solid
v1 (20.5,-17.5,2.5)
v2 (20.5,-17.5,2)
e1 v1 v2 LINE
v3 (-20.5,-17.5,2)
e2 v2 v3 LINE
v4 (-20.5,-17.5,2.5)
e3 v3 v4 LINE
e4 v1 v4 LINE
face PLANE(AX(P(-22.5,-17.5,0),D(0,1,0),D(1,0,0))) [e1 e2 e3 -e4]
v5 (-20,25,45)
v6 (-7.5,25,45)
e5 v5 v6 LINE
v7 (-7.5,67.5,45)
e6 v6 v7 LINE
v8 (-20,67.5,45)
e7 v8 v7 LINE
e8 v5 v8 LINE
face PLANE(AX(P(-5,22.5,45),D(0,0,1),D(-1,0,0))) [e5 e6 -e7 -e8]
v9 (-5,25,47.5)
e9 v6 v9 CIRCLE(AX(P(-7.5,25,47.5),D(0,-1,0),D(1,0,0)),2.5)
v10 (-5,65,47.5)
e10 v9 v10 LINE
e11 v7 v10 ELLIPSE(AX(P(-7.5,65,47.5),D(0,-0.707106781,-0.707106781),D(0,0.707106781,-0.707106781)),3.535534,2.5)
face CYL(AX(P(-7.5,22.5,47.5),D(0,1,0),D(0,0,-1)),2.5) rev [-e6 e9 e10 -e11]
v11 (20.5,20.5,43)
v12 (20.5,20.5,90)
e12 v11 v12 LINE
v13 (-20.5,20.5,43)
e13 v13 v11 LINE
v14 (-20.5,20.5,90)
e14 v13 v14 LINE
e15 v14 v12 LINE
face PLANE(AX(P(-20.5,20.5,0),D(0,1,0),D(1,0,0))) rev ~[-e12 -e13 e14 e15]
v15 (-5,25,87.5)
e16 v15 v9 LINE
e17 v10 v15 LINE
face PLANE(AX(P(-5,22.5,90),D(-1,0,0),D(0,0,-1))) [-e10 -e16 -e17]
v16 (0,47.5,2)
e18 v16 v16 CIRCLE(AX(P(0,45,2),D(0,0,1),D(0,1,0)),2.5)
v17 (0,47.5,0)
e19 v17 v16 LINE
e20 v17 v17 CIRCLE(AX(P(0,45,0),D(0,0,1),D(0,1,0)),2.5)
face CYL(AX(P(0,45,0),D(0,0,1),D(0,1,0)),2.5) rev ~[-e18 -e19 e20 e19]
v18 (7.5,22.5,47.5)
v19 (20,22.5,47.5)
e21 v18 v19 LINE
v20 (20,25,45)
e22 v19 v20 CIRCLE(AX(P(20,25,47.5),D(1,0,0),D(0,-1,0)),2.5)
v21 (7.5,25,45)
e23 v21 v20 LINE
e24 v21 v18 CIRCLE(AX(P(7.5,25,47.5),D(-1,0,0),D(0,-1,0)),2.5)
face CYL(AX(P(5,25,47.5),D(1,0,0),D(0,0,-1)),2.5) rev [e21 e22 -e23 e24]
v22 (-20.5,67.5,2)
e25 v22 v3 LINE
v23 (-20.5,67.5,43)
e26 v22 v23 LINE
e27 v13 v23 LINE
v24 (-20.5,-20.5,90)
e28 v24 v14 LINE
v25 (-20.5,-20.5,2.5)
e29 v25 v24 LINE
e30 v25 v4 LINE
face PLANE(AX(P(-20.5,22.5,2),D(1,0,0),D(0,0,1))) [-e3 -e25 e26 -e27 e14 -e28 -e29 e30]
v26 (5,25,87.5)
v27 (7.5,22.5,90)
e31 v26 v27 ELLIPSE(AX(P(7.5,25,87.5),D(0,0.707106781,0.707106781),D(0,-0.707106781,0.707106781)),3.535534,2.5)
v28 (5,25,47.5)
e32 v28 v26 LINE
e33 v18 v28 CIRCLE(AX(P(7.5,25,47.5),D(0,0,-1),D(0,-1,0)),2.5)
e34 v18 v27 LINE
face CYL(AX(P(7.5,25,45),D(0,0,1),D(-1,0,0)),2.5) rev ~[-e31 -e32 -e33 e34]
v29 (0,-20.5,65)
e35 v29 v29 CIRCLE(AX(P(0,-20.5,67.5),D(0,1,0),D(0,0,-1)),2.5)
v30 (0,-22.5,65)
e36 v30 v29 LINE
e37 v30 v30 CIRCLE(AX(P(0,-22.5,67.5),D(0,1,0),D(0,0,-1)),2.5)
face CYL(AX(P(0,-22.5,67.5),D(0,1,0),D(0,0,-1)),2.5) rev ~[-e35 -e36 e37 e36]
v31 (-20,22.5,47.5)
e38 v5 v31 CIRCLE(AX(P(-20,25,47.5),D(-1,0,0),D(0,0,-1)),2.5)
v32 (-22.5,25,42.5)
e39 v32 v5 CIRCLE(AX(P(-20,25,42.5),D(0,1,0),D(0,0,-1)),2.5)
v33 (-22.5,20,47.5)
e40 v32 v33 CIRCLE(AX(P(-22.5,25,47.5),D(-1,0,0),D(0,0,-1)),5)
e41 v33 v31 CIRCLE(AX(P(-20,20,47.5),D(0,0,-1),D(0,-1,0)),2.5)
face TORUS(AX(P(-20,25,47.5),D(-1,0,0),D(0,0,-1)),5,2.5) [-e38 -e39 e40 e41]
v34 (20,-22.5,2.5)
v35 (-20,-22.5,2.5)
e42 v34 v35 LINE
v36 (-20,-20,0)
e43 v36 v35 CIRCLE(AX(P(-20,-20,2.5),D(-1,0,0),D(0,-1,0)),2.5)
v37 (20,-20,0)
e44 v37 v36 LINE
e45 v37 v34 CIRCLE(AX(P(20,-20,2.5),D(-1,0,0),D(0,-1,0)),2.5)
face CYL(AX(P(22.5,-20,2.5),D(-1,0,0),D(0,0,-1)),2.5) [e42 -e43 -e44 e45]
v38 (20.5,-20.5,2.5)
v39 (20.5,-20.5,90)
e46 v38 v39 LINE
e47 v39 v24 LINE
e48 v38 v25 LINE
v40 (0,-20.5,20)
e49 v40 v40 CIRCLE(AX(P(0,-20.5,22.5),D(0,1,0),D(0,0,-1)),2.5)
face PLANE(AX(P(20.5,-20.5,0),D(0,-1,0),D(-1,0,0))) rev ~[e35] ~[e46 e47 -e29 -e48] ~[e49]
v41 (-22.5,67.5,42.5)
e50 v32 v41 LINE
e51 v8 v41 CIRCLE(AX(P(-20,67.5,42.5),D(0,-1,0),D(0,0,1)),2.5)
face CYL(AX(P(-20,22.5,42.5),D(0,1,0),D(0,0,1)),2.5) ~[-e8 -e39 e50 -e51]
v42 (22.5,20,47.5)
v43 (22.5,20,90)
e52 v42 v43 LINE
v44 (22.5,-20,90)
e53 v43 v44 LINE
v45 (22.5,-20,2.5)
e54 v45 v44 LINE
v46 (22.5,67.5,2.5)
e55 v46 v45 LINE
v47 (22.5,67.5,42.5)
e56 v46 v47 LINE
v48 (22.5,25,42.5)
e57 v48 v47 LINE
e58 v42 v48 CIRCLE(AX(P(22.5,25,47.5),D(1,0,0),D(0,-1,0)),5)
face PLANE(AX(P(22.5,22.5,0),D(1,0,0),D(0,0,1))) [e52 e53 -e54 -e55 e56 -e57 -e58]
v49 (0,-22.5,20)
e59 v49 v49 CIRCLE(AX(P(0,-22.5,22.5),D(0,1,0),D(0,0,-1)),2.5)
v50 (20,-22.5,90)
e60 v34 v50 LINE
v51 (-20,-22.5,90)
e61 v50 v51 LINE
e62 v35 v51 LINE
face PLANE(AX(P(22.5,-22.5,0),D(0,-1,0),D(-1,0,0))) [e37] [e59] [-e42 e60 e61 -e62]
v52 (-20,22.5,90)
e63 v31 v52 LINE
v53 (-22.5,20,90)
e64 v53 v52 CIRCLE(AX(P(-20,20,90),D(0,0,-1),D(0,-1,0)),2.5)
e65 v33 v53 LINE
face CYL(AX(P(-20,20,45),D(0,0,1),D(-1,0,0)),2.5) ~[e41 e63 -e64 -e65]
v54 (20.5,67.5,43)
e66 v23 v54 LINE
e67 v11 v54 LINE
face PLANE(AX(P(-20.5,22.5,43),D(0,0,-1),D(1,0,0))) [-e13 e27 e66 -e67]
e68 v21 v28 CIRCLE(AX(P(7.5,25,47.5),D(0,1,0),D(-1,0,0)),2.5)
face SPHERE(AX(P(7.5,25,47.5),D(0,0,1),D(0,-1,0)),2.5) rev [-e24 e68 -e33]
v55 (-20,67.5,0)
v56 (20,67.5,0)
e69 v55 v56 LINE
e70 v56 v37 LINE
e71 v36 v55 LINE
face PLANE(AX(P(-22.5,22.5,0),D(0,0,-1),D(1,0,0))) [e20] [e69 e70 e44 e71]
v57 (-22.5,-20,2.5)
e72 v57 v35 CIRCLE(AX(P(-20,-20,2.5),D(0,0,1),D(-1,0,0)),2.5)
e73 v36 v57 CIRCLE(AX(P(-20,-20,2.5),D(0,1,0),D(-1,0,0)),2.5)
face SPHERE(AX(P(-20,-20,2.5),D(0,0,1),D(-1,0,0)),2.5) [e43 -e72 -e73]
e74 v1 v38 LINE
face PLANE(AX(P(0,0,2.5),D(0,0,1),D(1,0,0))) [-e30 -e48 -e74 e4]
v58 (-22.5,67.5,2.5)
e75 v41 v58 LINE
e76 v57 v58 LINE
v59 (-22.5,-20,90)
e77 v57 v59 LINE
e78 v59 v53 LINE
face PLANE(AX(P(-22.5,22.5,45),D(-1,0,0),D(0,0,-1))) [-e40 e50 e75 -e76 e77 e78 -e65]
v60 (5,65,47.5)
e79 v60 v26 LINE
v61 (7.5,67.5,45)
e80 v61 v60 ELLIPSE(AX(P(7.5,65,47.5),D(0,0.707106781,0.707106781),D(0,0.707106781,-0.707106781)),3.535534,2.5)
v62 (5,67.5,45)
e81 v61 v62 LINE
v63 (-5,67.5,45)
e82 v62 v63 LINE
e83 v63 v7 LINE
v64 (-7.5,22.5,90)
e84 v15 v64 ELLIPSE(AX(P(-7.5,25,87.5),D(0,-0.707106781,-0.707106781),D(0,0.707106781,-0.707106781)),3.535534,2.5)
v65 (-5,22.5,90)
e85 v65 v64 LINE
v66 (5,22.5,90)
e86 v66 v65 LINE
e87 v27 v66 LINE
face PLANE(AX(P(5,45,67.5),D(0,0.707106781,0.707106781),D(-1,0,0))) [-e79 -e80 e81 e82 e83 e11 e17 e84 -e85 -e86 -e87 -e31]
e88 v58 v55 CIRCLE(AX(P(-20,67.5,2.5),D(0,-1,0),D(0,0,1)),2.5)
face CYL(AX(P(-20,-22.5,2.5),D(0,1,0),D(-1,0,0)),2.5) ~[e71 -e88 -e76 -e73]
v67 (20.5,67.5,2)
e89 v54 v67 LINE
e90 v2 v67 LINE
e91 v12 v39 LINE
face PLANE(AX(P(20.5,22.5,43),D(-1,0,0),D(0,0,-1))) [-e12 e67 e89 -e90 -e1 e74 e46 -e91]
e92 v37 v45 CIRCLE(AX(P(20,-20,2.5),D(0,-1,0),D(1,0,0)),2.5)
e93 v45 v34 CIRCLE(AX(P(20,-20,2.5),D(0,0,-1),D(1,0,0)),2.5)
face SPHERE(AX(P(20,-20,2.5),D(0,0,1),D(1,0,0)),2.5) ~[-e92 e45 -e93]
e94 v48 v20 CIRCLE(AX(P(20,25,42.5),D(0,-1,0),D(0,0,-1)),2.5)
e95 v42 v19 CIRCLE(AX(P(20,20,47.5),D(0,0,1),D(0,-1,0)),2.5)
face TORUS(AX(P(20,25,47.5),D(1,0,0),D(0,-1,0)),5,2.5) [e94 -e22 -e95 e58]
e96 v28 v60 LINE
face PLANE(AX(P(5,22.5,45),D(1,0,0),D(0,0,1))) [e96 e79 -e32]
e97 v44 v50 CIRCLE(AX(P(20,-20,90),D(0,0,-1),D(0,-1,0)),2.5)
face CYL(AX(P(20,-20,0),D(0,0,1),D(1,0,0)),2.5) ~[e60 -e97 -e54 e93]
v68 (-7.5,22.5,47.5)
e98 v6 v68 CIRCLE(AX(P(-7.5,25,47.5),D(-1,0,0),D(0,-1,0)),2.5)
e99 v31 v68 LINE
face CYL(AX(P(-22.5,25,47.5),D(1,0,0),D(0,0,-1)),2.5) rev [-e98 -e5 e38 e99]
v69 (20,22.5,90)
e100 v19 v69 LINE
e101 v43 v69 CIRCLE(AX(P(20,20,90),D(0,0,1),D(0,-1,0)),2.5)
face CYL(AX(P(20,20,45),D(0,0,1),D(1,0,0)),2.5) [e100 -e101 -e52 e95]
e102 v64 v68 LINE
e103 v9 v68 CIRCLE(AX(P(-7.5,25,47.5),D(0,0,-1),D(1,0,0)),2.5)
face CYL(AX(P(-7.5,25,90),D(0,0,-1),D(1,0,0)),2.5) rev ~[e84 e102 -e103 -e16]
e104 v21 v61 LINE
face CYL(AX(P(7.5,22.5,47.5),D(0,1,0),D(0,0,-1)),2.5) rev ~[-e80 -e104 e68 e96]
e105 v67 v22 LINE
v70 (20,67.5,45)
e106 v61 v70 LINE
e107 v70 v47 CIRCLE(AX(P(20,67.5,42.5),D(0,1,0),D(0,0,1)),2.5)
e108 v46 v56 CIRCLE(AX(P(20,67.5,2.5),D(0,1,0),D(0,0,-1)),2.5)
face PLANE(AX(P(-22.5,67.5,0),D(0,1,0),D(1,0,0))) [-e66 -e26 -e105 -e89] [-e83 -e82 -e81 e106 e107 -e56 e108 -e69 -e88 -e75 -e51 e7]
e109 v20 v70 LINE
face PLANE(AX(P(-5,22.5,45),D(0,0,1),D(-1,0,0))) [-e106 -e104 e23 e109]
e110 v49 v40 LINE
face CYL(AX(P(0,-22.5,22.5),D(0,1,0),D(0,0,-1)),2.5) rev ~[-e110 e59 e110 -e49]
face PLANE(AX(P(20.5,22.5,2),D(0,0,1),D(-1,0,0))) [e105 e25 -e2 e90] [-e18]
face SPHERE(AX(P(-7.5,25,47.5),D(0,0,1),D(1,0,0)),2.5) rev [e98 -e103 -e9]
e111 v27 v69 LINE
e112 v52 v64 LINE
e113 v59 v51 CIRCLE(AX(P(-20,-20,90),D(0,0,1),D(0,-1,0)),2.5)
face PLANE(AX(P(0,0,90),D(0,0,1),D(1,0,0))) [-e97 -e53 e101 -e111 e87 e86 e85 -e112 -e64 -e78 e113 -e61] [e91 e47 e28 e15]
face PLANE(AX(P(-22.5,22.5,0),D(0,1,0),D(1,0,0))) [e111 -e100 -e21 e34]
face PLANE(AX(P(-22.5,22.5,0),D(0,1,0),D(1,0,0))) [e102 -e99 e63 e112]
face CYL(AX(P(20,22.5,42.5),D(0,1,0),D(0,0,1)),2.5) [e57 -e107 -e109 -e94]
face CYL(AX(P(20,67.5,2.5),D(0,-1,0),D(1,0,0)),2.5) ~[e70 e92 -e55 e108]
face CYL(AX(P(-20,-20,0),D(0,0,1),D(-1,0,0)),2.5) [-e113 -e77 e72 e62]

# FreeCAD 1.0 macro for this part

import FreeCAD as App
import Part
import Sketcher

V = App.Vector
Q = App.Units.Quantity


def edges_at(feature, points):
    """Names of the edges that pass closest to the given points."""
    edges = feature.Shape.Edges
    near = lambda p: min(range(len(edges)), key=lambda i: edges[i].distToShape(Part.Vertex(*p))[0])
    return sorted({f"Edge{near(p) + 1}" for p in points})


def add_polygon(sketch, points):
    """Adds a closed chain of lines whose ends are joined by coincident constraints."""
    first, n = sketch.GeometryCount, len(points)
    for a, b in zip(points, points[1:] + points[:1]):
        sketch.addGeometry(Part.LineSegment(App.Vector(*a, 0), App.Vector(*b, 0)), False)
    for i in range(n):
        sketch.addConstraint(Sketcher.Constraint("Coincident", first + i, 2, first + (i + 1) % n, 1))

doc = App.newDocument("Part")
params = doc.addObject("Spreadsheet::Sheet", "Params")
for row, (alias, value) in enumerate([
    ("sketch1_width", "45 mm"),
    ("sketch1_width2", "41 mm"),
    ("pad1_length", "90 mm"),
    ("sketch2_width", "41 mm"),
    ("pad2_length", "2.5 mm"),
    ("sketch3_width", "45 mm"),
    ("sketch3_width2", "41 mm"),
    ("pad3_length", "45 mm"),
    ("sketch4_width", "41 mm"),
    ("pocket1_length", "40 mm"),
    ("sketch5_width", "10 mm"),
    ("sketch5_height", "45 mm"),
    ("pad4_length", "45 mm"),
    ("chamfer_size", "45 mm"),
    ("sketch6_diameter", "5 mm"),
    ("hole_diameter", "5 mm"),
    ("hole_depth", "8 mm"),
    ("sketch7_diameter", "5 mm"),
    ("hole2_diameter", "5 mm"),
    ("hole2_depth", "8 mm"),
    ("fillet_radius", "2.5 mm"),
], start=1):
    params.set(f"A{row}", alias)
    params.set(f"B{row}", "=" + value)
    params.setAlias(f"B{row}", alias)

body = doc.addObject("PartDesign::Body", "Body")

# Sketch on XY plane
sketch1 = body.newObject("Sketcher::SketchObject", "Sketch")
sketch1.AttachmentSupport = (doc.getObject("XY_Plane"), [""])
sketch1.MapMode = "FlatFace"
add_polygon(sketch1, [(-22, -22), (22, -22), (22, 22), (-22, 22)])  # lines 0-3
add_polygon(sketch1, [(20, 20), (20, -20), (-20, -20), (-20, 20)])  # lines 4-7
sketch1.addConstraint([
    Sketcher.Constraint("Horizontal", 0),
    Sketcher.Constraint("Vertical", 1),
    Sketcher.Constraint("Horizontal", 2),
    Sketcher.Constraint("Vertical", 3),
    Sketcher.Constraint("Vertical", 4),
    Sketcher.Constraint("Horizontal", 5),
    Sketcher.Constraint("Vertical", 6),
    Sketcher.Constraint("Horizontal", 7),
    Sketcher.Constraint("Symmetric", 0, 2, 2, 2, -1, 1),
    Sketcher.Constraint("Symmetric", 4, 2, 6, 2, -1, 1),
    Sketcher.Constraint("Equal", 2, 1),
    Sketcher.Constraint("Equal", 7, 4),
    Sketcher.Constraint("DistanceX", 0, 1, 0, 2, Q("45 mm")),
    Sketcher.Constraint("DistanceX", 5, 2, 5, 1, Q("41 mm")),
])
sketch1.setExpression("Constraints[20]", "Params.sketch1_width")
sketch1.setExpression("Constraints[21]", "Params.sketch1_width2")
pad1 = body.newObject("PartDesign::Pad", "Pad")
pad1.Profile = sketch1
pad1.setExpression("Length", "Params.pad1_length")

# Sketch on XY plane
sketch2 = body.newObject("Sketcher::SketchObject", "Sketch001")
sketch2.AttachmentSupport = (doc.getObject("XY_Plane"), [""])
sketch2.MapMode = "FlatFace"
add_polygon(sketch2, [(-20, -20), (20, -20), (20, 20), (-20, 20)])  # lines 0-3
sketch2.addConstraint([
    Sketcher.Constraint("Horizontal", 0),
    Sketcher.Constraint("Vertical", 1),
    Sketcher.Constraint("Horizontal", 2),
    Sketcher.Constraint("Vertical", 3),
    Sketcher.Constraint("Symmetric", 0, 2, 2, 2, -1, 1),
    Sketcher.Constraint("Equal", 2, 1),
    Sketcher.Constraint("DistanceX", 0, 1, 0, 2, Q("41 mm")),
])
sketch2.setExpression("Constraints[10]", "Params.sketch2_width")
pad2 = body.newObject("PartDesign::Pad", "Pad001")
pad2.Profile = sketch2
pad2.setExpression("Length", "Params.pad2_length")

# Sketch on XZ plane
sketch3 = body.newObject("Sketcher::SketchObject", "Sketch002")
sketch3.AttachmentSupport = (doc.getObject("XZ_Plane"), [""])
sketch3.MapMode = "FlatFace"
sketch3.AttachmentOffset = App.Placement(V(0, 0, -22.5), App.Rotation())
add_polygon(sketch3, [(22, 0), (-22, 0), (-22, 45), (22, 45)])  # lines 0-3
add_polygon(sketch3, [(-20, 2), (20, 2), (20, 43), (-20, 43)])  # lines 4-7
sketch3.addConstraint([
    Sketcher.Constraint("Horizontal", 0),
    Sketcher.Constraint("Vertical", 1),
    Sketcher.Constraint("Horizontal", 2),
    Sketcher.Constraint("Vertical", 3),
    Sketcher.Constraint("Horizontal", 4),
    Sketcher.Constraint("Vertical", 5),
    Sketcher.Constraint("Horizontal", 6),
    Sketcher.Constraint("Vertical", 7),
    Sketcher.Constraint("Symmetric", 0, 2, 3, 2, -1, 1),
    Sketcher.Constraint("Equal", 2, 1),
    Sketcher.Constraint("Equal", 6, 5),
    Sketcher.Constraint("DistanceX", 0, 2, 0, 1, Q("45 mm")),
    Sketcher.Constraint("DistanceX", 4, 1, 4, 2, Q("41 mm")),
    Sketcher.Constraint("DistanceY", -1, 1, 4, 2, Q("2 mm")),
    Sketcher.Constraint("DistanceX", 4, 2, 3, 2, Q("2 mm")),
])
sketch3.setExpression("Constraints[19]", "Params.sketch3_width")
sketch3.setExpression("Constraints[20]", "Params.sketch3_width2")
pad3 = body.newObject("PartDesign::Pad", "Pad002")
pad3.Profile = sketch3
pad3.setExpression("Length", "Params.pad3_length")
pad3.Reversed = True

# Sketch on XZ plane
sketch4 = body.newObject("Sketcher::SketchObject", "Sketch003")
sketch4.AttachmentSupport = (doc.getObject("XZ_Plane"), [""])
sketch4.MapMode = "FlatFace"
sketch4.AttachmentOffset = App.Placement(V(0, 0, -22.5), App.Rotation())
add_polygon(sketch4, [(20, 43), (20, 2), (-20, 2), (-20, 43)])  # lines 0-3
sketch4.addConstraint([
    Sketcher.Constraint("Vertical", 0),
    Sketcher.Constraint("Horizontal", 1),
    Sketcher.Constraint("Vertical", 2),
    Sketcher.Constraint("Horizontal", 3),
    Sketcher.Constraint("Equal", 3, 0),
    Sketcher.Constraint("DistanceX", 1, 2, 1, 1, Q("41 mm")),
    Sketcher.Constraint("DistanceY", -1, 1, 0, 2, Q("2 mm")),
    Sketcher.Constraint("DistanceX", -1, 1, 0, 2, Q("20.5 mm")),
])
sketch4.setExpression("Constraints[9]", "Params.sketch4_width")
pocket1 = body.newObject("PartDesign::Pocket", "Pocket")
pocket1.Profile = sketch4
pocket1.setExpression("Length", "Params.pocket1_length")
pocket1.Reversed = True

# Sketch on XZ plane
sketch5 = body.newObject("Sketcher::SketchObject", "Sketch004")
sketch5.AttachmentSupport = (doc.getObject("XZ_Plane"), [""])
sketch5.MapMode = "FlatFace"
sketch5.AttachmentOffset = App.Placement(V(0, 0, -22.5), App.Rotation())
add_polygon(sketch5, [(5, 45), (-5, 45), (-5, 90), (5, 90)])  # lines 0-3
sketch5.addConstraint([
    Sketcher.Constraint("Horizontal", 0),
    Sketcher.Constraint("Vertical", 1),
    Sketcher.Constraint("Horizontal", 2),
    Sketcher.Constraint("Vertical", 3),
    Sketcher.Constraint("DistanceX", 0, 2, 0, 1, Q("10 mm")),
    Sketcher.Constraint("DistanceY", 1, 1, 1, 2, Q("45 mm")),
    Sketcher.Constraint("DistanceX", 0, 2, -1, 1, Q("5 mm")),
    Sketcher.Constraint("DistanceY", -1, 1, 0, 2, Q("45 mm")),
])
sketch5.setExpression("Constraints[8]", "Params.sketch5_width")
sketch5.setExpression("Constraints[9]", "Params.sketch5_height")
pad4 = body.newObject("PartDesign::Pad", "Pad003")
pad4.Profile = sketch5
pad4.setExpression("Length", "Params.pad4_length")
pad4.Reversed = True
doc.recompute()

chamfer = body.newObject("PartDesign::Chamfer", "Chamfer")
chamfer.Base = (pad4, edges_at(pad4, [(0, 67.5, 90)]))
chamfer.setExpression("Size", "Params.chamfer_size")

# Sketch on XZ plane
sketch6 = body.newObject("Sketcher::SketchObject", "Sketch005")
sketch6.AttachmentSupport = (doc.getObject("XZ_Plane"), [""])
sketch6.MapMode = "FlatFace"
sketch6.AttachmentOffset = App.Placement(V(0, 0, 22.5), App.Rotation())
sketch6.addGeometry([
    Part.Circle(V(0, 67.5, 0), V(0, 0, 1), 2.5),
    Part.Circle(V(0, 22.5, 0), V(0, 0, 1), 2.5),
], False)
sketch6.addConstraint([
    Sketcher.Constraint("Equal", 0, 1),
    Sketcher.Constraint("PointOnObject", 0, 3, -2),
    Sketcher.Constraint("PointOnObject", 1, 3, -2),
    Sketcher.Constraint("Diameter", 0, Q("5 mm")),
    Sketcher.Constraint("DistanceY", 1, 3, 0, 3, Q("45 mm")),
    Sketcher.Constraint("DistanceY", -1, 1, 0, 3, Q("67.5 mm")),
])
sketch6.setExpression("Constraints[3]", "Params.sketch6_diameter")
doc.recompute()
hole = body.newObject("PartDesign::Hole", "Hole")
hole.Profile = sketch6
hole.ThreadType = "None"
hole.setExpression("Diameter", "Params.hole_diameter")
hole.DepthType = "Dimension"
hole.setExpression("Depth", "Params.hole_depth")
hole.DrillPoint = "Angled"
hole.DrillPointAngle = 118

# Sketch on XY plane
sketch7 = body.newObject("Sketcher::SketchObject", "Sketch006")
sketch7.AttachmentSupport = (doc.getObject("XY_Plane"), [""])
sketch7.MapMode = "FlatFace"
sketch7.addGeometry(Part.Circle(V(0, 45, 0), V(0, 0, 1), 2.5), False)
sketch7.addConstraint([
    Sketcher.Constraint("PointOnObject", 0, 3, -2),
    Sketcher.Constraint("Diameter", 0, Q("5 mm")),
    Sketcher.Constraint("DistanceY", -1, 1, 0, 3, Q("45 mm")),
])
sketch7.setExpression("Constraints[1]", "Params.sketch7_diameter")
doc.recompute()
hole2 = body.newObject("PartDesign::Hole", "Hole001")
hole2.Profile = sketch7
hole2.ThreadType = "None"
hole2.setExpression("Diameter", "Params.hole2_diameter")
hole2.DepthType = "Dimension"
hole2.setExpression("Depth", "Params.hole2_depth")
hole2.DrillPoint = "Angled"
hole2.DrillPointAngle = 118
hole2.Reversed = True
doc.recompute()

fillet = body.newObject("PartDesign::Fillet", "Fillet")
fillet.Base = (hole2, edges_at(hole2, [
    (-22.5, 45, 45),
    (-22.5, 22.5, 67.5),
    (-22.5, -22.5, 45),
    (-22.5, 22.5, 0),
    (22.5, 22.5, 67.5),
    (22.5, 45, 45),
    (22.5, -22.5, 45),
    (22.5, 22.5, 0),
    (0, -22.5, 0),
    (-5, 22.5, 67.5),
    (-5, 45, 45),
    (-13.75, 22.5, 45),
    (5, 22.5, 67.5),
    (13.75, 22.5, 45),
    (5, 45, 45),
]))
fillet.setExpression("Radius", "Params.fillet_radius")

doc.recompute()
